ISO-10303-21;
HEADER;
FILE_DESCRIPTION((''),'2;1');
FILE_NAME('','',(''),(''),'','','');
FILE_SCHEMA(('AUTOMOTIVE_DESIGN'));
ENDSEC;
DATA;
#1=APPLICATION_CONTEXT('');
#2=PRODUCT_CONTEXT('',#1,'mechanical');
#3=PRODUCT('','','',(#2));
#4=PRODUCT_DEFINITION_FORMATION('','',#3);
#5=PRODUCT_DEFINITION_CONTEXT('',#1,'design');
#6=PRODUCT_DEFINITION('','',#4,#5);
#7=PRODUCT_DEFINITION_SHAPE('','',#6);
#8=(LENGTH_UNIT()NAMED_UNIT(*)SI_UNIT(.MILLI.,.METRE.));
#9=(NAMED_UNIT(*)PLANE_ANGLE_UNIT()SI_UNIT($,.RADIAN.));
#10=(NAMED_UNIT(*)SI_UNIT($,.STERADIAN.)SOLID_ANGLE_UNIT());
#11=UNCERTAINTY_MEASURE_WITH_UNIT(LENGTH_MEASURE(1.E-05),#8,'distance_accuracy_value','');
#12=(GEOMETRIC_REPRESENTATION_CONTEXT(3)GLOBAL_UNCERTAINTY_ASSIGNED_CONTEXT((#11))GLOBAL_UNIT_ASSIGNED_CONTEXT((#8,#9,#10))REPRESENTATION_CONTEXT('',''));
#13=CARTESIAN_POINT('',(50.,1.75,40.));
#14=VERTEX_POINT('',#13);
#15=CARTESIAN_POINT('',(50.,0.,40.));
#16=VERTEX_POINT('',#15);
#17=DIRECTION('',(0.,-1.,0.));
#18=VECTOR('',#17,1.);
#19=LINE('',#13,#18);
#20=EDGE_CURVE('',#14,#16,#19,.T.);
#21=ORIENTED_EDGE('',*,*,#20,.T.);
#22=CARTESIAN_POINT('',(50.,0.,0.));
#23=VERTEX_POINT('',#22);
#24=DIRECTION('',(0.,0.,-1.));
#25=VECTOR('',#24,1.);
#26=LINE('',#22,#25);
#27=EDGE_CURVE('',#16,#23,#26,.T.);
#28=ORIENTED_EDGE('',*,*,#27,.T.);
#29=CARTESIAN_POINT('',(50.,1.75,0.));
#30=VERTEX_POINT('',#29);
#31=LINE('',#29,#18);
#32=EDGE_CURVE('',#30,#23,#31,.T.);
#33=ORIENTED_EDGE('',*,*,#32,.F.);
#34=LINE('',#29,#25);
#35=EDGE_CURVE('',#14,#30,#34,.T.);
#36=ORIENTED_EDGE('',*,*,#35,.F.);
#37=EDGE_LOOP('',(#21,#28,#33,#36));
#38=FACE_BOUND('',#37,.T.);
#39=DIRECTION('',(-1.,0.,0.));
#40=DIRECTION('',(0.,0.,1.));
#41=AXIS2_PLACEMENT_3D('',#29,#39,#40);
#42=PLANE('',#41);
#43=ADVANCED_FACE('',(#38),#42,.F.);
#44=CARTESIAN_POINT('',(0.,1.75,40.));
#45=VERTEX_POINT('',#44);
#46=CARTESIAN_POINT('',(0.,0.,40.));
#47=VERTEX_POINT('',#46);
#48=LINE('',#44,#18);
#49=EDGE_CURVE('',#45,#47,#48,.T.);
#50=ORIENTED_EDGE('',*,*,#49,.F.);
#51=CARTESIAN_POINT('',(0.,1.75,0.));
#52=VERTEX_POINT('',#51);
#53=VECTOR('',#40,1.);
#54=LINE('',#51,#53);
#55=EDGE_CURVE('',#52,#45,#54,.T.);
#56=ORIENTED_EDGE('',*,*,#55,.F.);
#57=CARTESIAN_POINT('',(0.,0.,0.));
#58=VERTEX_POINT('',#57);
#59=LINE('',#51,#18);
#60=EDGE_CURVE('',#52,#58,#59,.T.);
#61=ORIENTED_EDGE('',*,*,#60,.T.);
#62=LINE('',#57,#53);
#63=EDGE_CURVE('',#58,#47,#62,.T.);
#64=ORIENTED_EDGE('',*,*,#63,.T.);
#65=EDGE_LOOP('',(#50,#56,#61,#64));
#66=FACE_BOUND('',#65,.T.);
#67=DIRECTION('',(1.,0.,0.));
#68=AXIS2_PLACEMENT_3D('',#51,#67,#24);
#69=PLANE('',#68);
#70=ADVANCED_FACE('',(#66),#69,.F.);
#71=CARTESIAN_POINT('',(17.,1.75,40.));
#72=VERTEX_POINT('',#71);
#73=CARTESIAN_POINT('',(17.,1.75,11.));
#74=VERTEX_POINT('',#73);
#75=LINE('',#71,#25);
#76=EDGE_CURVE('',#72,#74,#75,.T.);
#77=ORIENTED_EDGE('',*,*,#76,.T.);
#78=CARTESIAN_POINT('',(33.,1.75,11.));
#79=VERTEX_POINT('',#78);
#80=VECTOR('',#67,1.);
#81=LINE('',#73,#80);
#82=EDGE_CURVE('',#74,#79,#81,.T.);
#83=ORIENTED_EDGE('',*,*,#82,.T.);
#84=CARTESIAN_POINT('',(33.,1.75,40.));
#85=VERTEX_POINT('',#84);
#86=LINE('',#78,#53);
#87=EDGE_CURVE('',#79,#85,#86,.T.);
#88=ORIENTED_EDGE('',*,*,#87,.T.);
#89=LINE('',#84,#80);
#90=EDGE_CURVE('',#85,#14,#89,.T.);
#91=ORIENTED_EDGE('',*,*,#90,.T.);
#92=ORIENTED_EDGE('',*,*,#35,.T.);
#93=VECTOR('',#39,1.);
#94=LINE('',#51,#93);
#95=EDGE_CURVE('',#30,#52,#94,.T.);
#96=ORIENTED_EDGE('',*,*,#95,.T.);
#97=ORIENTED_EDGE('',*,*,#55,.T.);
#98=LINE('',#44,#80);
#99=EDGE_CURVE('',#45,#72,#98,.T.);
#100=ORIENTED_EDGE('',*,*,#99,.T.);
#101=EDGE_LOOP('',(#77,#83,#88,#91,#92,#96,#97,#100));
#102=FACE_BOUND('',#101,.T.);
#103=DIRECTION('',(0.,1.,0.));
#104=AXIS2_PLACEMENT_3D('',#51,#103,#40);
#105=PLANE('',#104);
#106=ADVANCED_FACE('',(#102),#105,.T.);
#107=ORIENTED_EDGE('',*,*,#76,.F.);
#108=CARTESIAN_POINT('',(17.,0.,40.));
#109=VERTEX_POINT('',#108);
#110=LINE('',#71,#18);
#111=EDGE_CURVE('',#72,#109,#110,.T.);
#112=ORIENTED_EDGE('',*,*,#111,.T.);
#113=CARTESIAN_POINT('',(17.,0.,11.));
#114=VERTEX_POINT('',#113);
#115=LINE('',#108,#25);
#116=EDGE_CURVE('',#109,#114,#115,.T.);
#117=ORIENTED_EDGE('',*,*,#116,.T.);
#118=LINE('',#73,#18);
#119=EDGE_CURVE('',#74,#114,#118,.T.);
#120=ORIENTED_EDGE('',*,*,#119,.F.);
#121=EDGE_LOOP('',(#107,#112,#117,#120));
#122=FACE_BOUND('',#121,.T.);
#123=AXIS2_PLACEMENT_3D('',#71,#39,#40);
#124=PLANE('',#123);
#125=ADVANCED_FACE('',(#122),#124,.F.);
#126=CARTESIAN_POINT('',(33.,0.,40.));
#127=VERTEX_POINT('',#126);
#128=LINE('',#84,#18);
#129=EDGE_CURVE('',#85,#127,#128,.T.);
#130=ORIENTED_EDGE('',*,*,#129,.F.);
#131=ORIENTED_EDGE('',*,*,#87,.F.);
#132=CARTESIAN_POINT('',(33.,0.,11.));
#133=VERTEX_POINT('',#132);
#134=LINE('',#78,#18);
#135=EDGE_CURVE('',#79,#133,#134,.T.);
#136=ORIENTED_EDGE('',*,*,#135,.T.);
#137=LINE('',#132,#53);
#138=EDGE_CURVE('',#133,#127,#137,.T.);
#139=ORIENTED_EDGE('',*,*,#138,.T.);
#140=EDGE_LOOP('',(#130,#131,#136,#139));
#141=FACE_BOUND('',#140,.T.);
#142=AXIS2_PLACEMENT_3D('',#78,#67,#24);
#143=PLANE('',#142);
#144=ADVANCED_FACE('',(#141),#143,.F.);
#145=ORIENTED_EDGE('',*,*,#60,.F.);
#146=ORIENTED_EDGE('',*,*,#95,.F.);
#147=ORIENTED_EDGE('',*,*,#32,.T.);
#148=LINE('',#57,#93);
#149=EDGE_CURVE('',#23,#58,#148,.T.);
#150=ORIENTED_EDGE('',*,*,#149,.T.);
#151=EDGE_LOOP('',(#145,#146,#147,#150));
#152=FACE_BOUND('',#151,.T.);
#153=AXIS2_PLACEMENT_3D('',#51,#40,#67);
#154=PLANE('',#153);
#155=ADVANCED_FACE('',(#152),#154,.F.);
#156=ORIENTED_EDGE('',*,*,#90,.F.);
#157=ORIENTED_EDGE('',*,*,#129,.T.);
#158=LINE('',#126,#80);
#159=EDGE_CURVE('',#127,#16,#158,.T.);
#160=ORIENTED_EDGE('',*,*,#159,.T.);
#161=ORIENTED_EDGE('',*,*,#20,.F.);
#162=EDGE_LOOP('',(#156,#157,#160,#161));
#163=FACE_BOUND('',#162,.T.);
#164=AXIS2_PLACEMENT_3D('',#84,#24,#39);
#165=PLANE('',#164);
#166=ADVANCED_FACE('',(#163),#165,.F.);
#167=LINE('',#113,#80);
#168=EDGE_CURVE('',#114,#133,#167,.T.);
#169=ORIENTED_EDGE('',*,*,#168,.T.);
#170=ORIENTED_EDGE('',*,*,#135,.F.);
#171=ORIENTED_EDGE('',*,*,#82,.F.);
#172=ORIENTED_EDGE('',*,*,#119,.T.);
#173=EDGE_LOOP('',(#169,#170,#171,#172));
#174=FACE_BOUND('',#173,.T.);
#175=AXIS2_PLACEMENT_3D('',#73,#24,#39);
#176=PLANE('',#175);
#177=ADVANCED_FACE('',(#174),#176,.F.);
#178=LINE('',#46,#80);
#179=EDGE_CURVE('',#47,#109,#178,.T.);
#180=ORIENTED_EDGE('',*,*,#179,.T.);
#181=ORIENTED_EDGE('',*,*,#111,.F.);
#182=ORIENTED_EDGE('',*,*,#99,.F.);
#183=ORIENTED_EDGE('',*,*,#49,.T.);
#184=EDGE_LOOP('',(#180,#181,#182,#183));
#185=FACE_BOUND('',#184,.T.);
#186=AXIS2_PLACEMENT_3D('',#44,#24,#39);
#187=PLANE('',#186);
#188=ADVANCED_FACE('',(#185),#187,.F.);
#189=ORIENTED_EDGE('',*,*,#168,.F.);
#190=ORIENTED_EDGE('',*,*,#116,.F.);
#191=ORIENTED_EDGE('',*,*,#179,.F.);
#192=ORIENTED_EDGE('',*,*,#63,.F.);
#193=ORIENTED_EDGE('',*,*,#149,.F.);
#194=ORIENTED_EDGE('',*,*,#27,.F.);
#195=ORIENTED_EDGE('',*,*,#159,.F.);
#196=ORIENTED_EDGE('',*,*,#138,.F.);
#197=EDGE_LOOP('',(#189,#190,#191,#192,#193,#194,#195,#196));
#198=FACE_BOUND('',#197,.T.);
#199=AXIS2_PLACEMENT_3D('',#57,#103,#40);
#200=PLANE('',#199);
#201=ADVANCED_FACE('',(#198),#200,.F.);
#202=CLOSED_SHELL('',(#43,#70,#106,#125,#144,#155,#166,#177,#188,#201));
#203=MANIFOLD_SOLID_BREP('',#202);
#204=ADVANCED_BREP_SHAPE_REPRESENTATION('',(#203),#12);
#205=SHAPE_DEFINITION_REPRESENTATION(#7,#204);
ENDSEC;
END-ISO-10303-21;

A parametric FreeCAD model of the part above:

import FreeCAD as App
import Part
import Sketcher

V = App.Vector
Q = App.Units.Quantity


def add_polygon(sketch, points):
    """Adds a closed chain of lines whose ends are joined by coincident constraints."""
    first, n = sketch.GeometryCount, len(points)
    for a, b in zip(points, points[1:] + points[:1]):
        sketch.addGeometry(Part.LineSegment(App.Vector(*a, 0), App.Vector(*b, 0)), False)
    for i in range(n):
        sketch.addConstraint(Sketcher.Constraint("Coincident", first + i, 2, first + (i + 1) % n, 1))

doc = App.newDocument("Part")
body = doc.addObject("PartDesign::Body", "Body")

# Sketch on XZ plane
sketch1 = body.newObject("Sketcher::SketchObject", "Sketch")
sketch1.AttachmentSupport = (doc.getObject("XZ_Plane"), [""])
sketch1.MapMode = "FlatFace"
add_polygon(sketch1, [(17, 40), (17, 11), (33, 11), (33, 40), (50, 40), (50, 0), (0, 0), (0, 40)])  # lines 0-7
sketch1.addConstraint([
    Sketcher.Constraint("Vertical", 0),
    Sketcher.Constraint("Horizontal", 1),
    Sketcher.Constraint("Vertical", 2),
    Sketcher.Constraint("Horizontal", 3),
    Sketcher.Constraint("Vertical", 4),
    Sketcher.Constraint("Horizontal", 5),
    Sketcher.Constraint("Vertical", 6),
    Sketcher.Constraint("Horizontal", 7),
    Sketcher.Constraint("Coincident", 5, 2, -1, 1),
    Sketcher.Constraint("Horizontal", 3, 2, 6, 2),
    Sketcher.Constraint("Equal", 3, 7),
    Sketcher.Constraint("DistanceX", 1, 1, 1, 2, Q("16 mm")),
    Sketcher.Constraint("DistanceX", 3, 1, 3, 2, Q("17 mm")),
    Sketcher.Constraint("DistanceY", 0, 2, 0, 1, Q("29 mm")),
    Sketcher.Constraint("DistanceY", 4, 2, 4, 1, Q("40 mm")),
])
pad1 = body.newObject("PartDesign::Pad", "Pad")
pad1.Profile = sketch1
pad1.Length = 1.75
pad1.Reversed = True

doc.recompute()
